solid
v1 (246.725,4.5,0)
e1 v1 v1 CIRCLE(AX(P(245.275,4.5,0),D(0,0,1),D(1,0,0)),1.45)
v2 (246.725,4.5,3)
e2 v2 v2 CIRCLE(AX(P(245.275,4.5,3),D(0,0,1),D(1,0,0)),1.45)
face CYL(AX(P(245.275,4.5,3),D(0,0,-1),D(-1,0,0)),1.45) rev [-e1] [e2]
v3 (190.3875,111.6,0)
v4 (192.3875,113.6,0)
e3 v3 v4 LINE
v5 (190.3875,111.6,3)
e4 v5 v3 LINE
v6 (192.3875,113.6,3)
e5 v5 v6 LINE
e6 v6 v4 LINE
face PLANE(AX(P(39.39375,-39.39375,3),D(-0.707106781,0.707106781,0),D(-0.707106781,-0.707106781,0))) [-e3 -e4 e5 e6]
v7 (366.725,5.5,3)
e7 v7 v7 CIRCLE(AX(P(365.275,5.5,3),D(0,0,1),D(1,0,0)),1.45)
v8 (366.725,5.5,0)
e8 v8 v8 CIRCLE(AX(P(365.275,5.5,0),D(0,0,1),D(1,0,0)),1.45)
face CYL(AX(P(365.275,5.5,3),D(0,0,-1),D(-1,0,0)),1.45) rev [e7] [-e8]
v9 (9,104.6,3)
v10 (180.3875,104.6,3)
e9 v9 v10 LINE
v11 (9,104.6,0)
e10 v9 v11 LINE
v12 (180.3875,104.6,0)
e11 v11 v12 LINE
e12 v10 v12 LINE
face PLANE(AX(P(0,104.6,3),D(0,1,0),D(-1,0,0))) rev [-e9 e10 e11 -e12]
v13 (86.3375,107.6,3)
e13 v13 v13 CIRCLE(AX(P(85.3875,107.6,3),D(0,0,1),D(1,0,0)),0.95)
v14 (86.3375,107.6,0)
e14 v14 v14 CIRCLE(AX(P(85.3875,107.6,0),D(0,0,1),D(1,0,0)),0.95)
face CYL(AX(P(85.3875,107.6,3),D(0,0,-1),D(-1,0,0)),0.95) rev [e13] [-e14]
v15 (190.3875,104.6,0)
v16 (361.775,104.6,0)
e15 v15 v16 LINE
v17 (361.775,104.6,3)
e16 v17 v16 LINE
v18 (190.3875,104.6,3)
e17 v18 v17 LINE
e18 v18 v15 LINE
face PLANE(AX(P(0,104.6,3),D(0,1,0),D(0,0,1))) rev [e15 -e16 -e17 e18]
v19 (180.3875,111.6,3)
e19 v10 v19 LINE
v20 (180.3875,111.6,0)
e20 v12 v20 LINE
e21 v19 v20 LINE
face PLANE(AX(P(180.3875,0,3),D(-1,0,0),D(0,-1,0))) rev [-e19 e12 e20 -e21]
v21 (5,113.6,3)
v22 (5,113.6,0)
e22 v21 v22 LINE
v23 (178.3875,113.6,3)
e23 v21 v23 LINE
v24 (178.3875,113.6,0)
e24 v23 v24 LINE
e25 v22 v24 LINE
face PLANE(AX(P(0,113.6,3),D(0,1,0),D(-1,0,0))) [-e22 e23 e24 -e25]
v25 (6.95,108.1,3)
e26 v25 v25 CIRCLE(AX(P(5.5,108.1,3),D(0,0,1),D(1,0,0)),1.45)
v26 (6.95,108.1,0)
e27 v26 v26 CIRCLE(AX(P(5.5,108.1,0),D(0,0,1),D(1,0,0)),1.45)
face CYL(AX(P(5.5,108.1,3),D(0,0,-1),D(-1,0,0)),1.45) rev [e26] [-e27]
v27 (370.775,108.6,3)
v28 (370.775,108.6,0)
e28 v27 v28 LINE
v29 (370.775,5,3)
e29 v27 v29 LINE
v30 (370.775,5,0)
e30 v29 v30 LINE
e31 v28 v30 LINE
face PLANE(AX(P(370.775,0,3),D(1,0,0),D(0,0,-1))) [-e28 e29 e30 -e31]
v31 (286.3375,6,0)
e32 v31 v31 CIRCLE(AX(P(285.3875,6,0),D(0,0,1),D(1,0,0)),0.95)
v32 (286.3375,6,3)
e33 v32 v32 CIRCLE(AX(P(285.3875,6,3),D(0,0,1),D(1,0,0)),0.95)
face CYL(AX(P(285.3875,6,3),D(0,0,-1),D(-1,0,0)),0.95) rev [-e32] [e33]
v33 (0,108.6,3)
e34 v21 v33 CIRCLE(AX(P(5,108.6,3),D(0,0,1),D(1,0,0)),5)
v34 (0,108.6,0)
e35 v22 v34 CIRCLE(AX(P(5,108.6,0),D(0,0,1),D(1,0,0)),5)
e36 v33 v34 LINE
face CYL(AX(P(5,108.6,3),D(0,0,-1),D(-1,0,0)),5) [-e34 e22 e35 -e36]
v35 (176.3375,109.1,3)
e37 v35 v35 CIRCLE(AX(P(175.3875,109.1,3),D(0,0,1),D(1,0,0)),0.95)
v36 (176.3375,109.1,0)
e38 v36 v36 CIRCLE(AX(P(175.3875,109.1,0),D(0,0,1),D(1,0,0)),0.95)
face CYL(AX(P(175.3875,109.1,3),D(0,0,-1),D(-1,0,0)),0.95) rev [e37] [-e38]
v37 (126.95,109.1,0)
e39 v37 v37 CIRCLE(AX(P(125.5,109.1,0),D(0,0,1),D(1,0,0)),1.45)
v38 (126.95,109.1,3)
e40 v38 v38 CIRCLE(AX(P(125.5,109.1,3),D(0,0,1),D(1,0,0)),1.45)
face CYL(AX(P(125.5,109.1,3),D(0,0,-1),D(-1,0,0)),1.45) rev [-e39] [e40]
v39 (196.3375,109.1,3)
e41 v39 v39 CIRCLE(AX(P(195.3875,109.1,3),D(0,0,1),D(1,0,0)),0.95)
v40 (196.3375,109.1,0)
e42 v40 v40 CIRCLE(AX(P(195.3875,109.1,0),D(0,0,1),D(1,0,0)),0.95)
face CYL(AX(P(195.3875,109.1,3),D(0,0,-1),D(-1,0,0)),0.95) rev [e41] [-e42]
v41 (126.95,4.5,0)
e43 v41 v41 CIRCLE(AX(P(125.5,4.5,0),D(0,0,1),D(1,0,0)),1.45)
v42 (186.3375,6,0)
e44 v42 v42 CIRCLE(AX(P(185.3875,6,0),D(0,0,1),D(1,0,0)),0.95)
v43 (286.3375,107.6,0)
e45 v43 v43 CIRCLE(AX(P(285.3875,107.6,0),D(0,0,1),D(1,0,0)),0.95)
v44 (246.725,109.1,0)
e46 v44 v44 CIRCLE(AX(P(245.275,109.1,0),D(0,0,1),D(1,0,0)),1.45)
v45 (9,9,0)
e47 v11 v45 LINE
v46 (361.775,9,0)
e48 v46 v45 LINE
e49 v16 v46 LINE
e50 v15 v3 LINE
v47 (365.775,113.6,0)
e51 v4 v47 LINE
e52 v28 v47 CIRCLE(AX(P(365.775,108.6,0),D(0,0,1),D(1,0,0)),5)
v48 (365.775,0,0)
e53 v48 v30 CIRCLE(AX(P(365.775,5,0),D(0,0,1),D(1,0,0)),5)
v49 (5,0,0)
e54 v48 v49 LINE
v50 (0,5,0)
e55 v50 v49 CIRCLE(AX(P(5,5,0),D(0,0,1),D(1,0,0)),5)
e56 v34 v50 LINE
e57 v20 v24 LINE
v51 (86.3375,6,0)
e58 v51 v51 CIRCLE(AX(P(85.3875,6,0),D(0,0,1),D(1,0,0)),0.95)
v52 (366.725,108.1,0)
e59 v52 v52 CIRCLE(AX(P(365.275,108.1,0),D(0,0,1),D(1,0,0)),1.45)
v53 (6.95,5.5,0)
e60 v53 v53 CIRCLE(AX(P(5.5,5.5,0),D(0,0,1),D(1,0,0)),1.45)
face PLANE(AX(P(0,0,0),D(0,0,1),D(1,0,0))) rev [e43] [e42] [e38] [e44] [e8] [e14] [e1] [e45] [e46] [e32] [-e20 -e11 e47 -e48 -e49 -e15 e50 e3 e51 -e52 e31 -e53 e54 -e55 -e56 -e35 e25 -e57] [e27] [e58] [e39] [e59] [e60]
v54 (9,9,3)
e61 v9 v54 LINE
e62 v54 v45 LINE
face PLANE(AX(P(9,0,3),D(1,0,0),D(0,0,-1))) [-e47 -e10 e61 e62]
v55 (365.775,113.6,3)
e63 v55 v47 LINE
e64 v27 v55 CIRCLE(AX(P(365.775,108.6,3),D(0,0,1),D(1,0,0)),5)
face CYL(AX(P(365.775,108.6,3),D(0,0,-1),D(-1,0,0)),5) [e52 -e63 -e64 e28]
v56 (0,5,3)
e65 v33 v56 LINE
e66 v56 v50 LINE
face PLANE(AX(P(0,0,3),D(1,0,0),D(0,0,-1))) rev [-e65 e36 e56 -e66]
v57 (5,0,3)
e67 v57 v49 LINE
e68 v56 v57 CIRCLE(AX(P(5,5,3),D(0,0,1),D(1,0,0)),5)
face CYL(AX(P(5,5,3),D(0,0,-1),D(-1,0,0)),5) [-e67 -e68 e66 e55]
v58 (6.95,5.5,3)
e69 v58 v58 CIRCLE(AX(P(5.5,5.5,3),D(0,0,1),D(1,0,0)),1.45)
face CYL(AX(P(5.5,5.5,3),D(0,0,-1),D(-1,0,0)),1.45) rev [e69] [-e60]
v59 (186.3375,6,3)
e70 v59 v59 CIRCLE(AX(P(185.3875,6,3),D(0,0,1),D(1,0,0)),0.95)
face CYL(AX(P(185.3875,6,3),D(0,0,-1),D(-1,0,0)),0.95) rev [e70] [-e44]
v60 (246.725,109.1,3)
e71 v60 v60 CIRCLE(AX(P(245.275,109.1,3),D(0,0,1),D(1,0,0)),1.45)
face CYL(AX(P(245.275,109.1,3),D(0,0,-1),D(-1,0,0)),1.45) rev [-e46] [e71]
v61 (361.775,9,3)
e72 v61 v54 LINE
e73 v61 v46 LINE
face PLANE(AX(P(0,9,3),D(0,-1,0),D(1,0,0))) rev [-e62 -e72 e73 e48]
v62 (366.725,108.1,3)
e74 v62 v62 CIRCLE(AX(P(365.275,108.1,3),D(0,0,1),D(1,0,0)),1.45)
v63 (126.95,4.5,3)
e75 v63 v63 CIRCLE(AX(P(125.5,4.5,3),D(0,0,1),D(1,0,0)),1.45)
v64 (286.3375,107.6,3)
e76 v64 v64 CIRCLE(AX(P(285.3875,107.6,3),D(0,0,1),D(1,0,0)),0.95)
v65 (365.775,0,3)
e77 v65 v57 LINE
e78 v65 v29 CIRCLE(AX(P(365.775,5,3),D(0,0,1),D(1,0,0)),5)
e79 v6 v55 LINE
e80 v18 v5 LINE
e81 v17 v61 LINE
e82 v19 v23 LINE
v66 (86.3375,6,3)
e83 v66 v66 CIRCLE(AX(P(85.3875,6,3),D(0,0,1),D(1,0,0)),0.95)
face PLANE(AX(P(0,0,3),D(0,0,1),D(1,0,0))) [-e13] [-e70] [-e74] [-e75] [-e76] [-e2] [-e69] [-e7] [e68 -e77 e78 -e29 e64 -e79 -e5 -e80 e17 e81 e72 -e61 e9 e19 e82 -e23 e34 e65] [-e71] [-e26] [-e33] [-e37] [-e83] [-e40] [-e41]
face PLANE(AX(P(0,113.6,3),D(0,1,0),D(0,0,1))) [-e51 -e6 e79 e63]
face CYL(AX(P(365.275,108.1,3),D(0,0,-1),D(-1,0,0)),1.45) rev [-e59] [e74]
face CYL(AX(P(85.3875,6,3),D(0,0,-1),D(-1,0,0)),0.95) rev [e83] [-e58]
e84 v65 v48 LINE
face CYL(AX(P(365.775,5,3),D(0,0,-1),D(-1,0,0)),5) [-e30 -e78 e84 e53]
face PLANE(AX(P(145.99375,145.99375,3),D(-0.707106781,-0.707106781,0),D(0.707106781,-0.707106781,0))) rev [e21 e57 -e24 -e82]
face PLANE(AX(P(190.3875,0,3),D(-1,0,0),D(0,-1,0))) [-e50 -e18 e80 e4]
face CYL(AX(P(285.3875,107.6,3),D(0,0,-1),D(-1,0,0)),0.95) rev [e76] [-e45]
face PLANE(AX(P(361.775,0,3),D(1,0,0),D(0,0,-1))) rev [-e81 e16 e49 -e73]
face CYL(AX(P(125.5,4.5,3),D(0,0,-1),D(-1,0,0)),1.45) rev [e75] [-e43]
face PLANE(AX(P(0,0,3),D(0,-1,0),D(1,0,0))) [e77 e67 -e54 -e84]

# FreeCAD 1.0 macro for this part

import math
import FreeCAD as App
import Part
import Sketcher

doc = App.newDocument("Part")
body = doc.addObject("PartDesign::Body", "Body")

# Sketch on XY plane
sketch1 = body.newObject("Sketcher::SketchObject", "Sketch")
sketch1.AttachmentSupport = (doc.getObject("XY_Plane"), [""])
sketch1.MapMode = "FlatFace"
sketch1.addGeometry(Part.LineSegment(App.Vector(178.4, 113.6, 0), App.Vector(5, 113.6, 0)), False)
sketch1.addGeometry(Part.ArcOfCircle(Part.Circle(App.Vector(5, 108.6, 0), App.Vector(0, 0, 1), 5), math.radians(90), math.radians(180)), False)
sketch1.addGeometry(Part.LineSegment(App.Vector(0, 108.6, 0), App.Vector(0, 5, 0)), False)
sketch1.addGeometry(Part.ArcOfCircle(Part.Circle(App.Vector(5, 5, 0), App.Vector(0, 0, 1), 5), math.radians(180), math.radians(270)), False)
sketch1.addGeometry(Part.LineSegment(App.Vector(5, 0, 0), App.Vector(365.8, 0, 0)), False)
sketch1.addGeometry(Part.ArcOfCircle(Part.Circle(App.Vector(365.8, 5, 0), App.Vector(0, 0, 1), 5), math.radians(-90), math.radians(0)), False)
sketch1.addGeometry(Part.LineSegment(App.Vector(370.8, 5, 0), App.Vector(370.8, 108.6, 0)), False)
sketch1.addGeometry(Part.ArcOfCircle(Part.Circle(App.Vector(365.8, 108.6, 0), App.Vector(0, 0, 1), 5), math.radians(0), math.radians(90)), False)
sketch1.addGeometry(Part.LineSegment(App.Vector(365.8, 113.6, 0), App.Vector(192.4, 113.6, 0)), False)
sketch1.addGeometry(Part.LineSegment(App.Vector(192.4, 113.6, 0), App.Vector(190.4, 111.6, 0)), False)
sketch1.addGeometry(Part.LineSegment(App.Vector(190.4, 111.6, 0), App.Vector(190.4, 104.6, 0)), False)
sketch1.addGeometry(Part.LineSegment(App.Vector(190.4, 104.6, 0), App.Vector(361.8, 104.6, 0)), False)
sketch1.addGeometry(Part.LineSegment(App.Vector(361.8, 104.6, 0), App.Vector(361.8, 9, 0)), False)
sketch1.addGeometry(Part.LineSegment(App.Vector(361.8, 9, 0), App.Vector(9, 9, 0)), False)
sketch1.addGeometry(Part.LineSegment(App.Vector(9, 9, 0), App.Vector(9, 104.6, 0)), False)
sketch1.addGeometry(Part.LineSegment(App.Vector(9, 104.6, 0), App.Vector(180.4, 104.6, 0)), False)
sketch1.addGeometry(Part.LineSegment(App.Vector(180.4, 104.6, 0), App.Vector(180.4, 111.6, 0)), False)
sketch1.addGeometry(Part.LineSegment(App.Vector(180.4, 111.6, 0), App.Vector(178.4, 113.6, 0)), False)
sketch1.addGeometry(Part.Circle(App.Vector(365.3, 5.5, 0), App.Vector(0, 0, 1), 1.4), False)
sketch1.addGeometry(Part.Circle(App.Vector(285.4, 6, 0), App.Vector(0, 0, 1), 0.9), False)
sketch1.addGeometry(Part.Circle(App.Vector(245.3, 4.5, 0), App.Vector(0, 0, 1), 1.4), False)
sketch1.addGeometry(Part.Circle(App.Vector(185.4, 6, 0), App.Vector(0, 0, 1), 0.9), False)
sketch1.addGeometry(Part.Circle(App.Vector(125.5, 4.5, 0), App.Vector(0, 0, 1), 1.4), False)
sketch1.addGeometry(Part.Circle(App.Vector(85.4, 6, 0), App.Vector(0, 0, 1), 0.9), False)
sketch1.addGeometry(Part.Circle(App.Vector(5.5, 5.5, 0), App.Vector(0, 0, 1), 1.4), False)
sketch1.addGeometry(Part.Circle(App.Vector(365.3, 108.1, 0), App.Vector(0, 0, 1), 1.4), False)
sketch1.addGeometry(Part.Circle(App.Vector(285.4, 107.6, 0), App.Vector(0, 0, 1), 0.9), False)
sketch1.addGeometry(Part.Circle(App.Vector(245.3, 109.1, 0), App.Vector(0, 0, 1), 1.4), False)
sketch1.addGeometry(Part.Circle(App.Vector(195.4, 109.1, 0), App.Vector(0, 0, 1), 0.9), False)
sketch1.addGeometry(Part.Circle(App.Vector(175.4, 109.1, 0), App.Vector(0, 0, 1), 0.9), False)
sketch1.addGeometry(Part.Circle(App.Vector(125.5, 109.1, 0), App.Vector(0, 0, 1), 1.4), False)
sketch1.addGeometry(Part.Circle(App.Vector(85.4, 107.6, 0), App.Vector(0, 0, 1), 0.9), False)
sketch1.addGeometry(Part.Circle(App.Vector(5.5, 108.1, 0), App.Vector(0, 0, 1), 1.4), False)
sketch1.addConstraint(Sketcher.Constraint("Tangent", 0, 2, 1, 1))
sketch1.addConstraint(Sketcher.Constraint("Tangent", 1, 2, 2, 1))
sketch1.addConstraint(Sketcher.Constraint("Tangent", 2, 2, 3, 1))
sketch1.addConstraint(Sketcher.Constraint("Tangent", 3, 2, 4, 1))
sketch1.addConstraint(Sketcher.Constraint("Tangent", 4, 2, 5, 1))
sketch1.addConstraint(Sketcher.Constraint("Tangent", 5, 2, 6, 1))
sketch1.addConstraint(Sketcher.Constraint("Tangent", 6, 2, 7, 1))
sketch1.addConstraint(Sketcher.Constraint("Tangent", 7, 2, 8, 1))
sketch1.addConstraint(Sketcher.Constraint("Coincident", 8, 2, 9, 1))
sketch1.addConstraint(Sketcher.Constraint("Coincident", 9, 2, 10, 1))
sketch1.addConstraint(Sketcher.Constraint("Coincident", 10, 2, 11, 1))
sketch1.addConstraint(Sketcher.Constraint("Coincident", 11, 2, 12, 1))
sketch1.addConstraint(Sketcher.Constraint("Coincident", 12, 2, 13, 1))
sketch1.addConstraint(Sketcher.Constraint("Coincident", 13, 2, 14, 1))
sketch1.addConstraint(Sketcher.Constraint("Coincident", 14, 2, 15, 1))
sketch1.addConstraint(Sketcher.Constraint("Coincident", 15, 2, 16, 1))
sketch1.addConstraint(Sketcher.Constraint("Coincident", 16, 2, 17, 1))
sketch1.addConstraint(Sketcher.Constraint("Coincident", 17, 2, 0, 1))
sketch1.addConstraint(Sketcher.Constraint("Horizontal", 0))
sketch1.addConstraint(Sketcher.Constraint("Vertical", 2))
sketch1.addConstraint(Sketcher.Constraint("Horizontal", 4))
sketch1.addConstraint(Sketcher.Constraint("Vertical", 6))
sketch1.addConstraint(Sketcher.Constraint("Horizontal", 8))
sketch1.addConstraint(Sketcher.Constraint("Vertical", 10))
sketch1.addConstraint(Sketcher.Constraint("Horizontal", 11))
sketch1.addConstraint(Sketcher.Constraint("Vertical", 12))
sketch1.addConstraint(Sketcher.Constraint("Horizontal", 13))
sketch1.addConstraint(Sketcher.Constraint("Vertical", 14))
sketch1.addConstraint(Sketcher.Constraint("Horizontal", 15))
sketch1.addConstraint(Sketcher.Constraint("Vertical", 16))
sketch1.addConstraint(Sketcher.Constraint("Equal", 1, 3))
sketch1.addConstraint(Sketcher.Constraint("Equal", 3, 5))
sketch1.addConstraint(Sketcher.Constraint("Equal", 5, 7))
sketch1.addConstraint(Sketcher.Constraint("Equal", 18, 20))
sketch1.addConstraint(Sketcher.Constraint("Equal", 19, 21))
sketch1.addConstraint(Sketcher.Constraint("Equal", 20, 22))
sketch1.addConstraint(Sketcher.Constraint("Equal", 21, 23))
sketch1.addConstraint(Sketcher.Constraint("Equal", 22, 24))
sketch1.addConstraint(Sketcher.Constraint("Equal", 24, 25))
sketch1.addConstraint(Sketcher.Constraint("Equal", 23, 26))
sketch1.addConstraint(Sketcher.Constraint("Equal", 25, 27))
sketch1.addConstraint(Sketcher.Constraint("Equal", 26, 28))
sketch1.addConstraint(Sketcher.Constraint("Equal", 28, 29))
sketch1.addConstraint(Sketcher.Constraint("Equal", 27, 30))
sketch1.addConstraint(Sketcher.Constraint("Equal", 29, 31))
sketch1.addConstraint(Sketcher.Constraint("Equal", 30, 32))
sketch1.addConstraint(Sketcher.Constraint("PointOnObject", 1, 2, -2))
sketch1.addConstraint(Sketcher.Constraint("PointOnObject", 3, 2, -1))
sketch1.addConstraint(Sketcher.Constraint("Perpendicular", 9, 17))
sketch1.addConstraint(Sketcher.Constraint("Horizontal", 1, 3, 7, 3))
sketch1.addConstraint(Sketcher.Constraint("Horizontal", 19, 3, 21, 3))
sketch1.addConstraint(Sketcher.Constraint("Horizontal", 20, 3, 22, 3))
sketch1.addConstraint(Sketcher.Constraint("Horizontal", 21, 3, 23, 3))
sketch1.addConstraint(Sketcher.Constraint("Horizontal", 18, 3, 24, 3))
sketch1.addConstraint(Sketcher.Constraint("Horizontal", 27, 3, 28, 3))
sketch1.addConstraint(Sketcher.Constraint("Horizontal", 28, 3, 29, 3))
sketch1.addConstraint(Sketcher.Constraint("Horizontal", 29, 3, 30, 3))
sketch1.addConstraint(Sketcher.Constraint("Horizontal", 26, 3, 31, 3))
sketch1.addConstraint(Sketcher.Constraint("Horizontal", 25, 3, 32, 3))
sketch1.addConstraint(Sketcher.Constraint("Horizontal", 11, 2, 14, 2))
sketch1.addConstraint(Sketcher.Constraint("Horizontal", 9, 2, 16, 2))
sketch1.addConstraint(Sketcher.Constraint("Vertical", 18, 3, 25, 3))
sketch1.addConstraint(Sketcher.Constraint("Vertical", 19, 3, 26, 3))
sketch1.addConstraint(Sketcher.Constraint("Vertical", 20, 3, 27, 3))
sketch1.addConstraint(Sketcher.Constraint("Vertical", 22, 3, 30, 3))
sketch1.addConstraint(Sketcher.Constraint("Vertical", 23, 3, 31, 3))
sketch1.addConstraint(Sketcher.Constraint("Vertical", 24, 3, 32, 3))
sketch1.addConstraint(Sketcher.Constraint("Equal", 0, 8))
sketch1.addConstraint(Sketcher.Constraint("Equal", 11, 15))
sketch1.addConstraint(Sketcher.Constraint("Equal", 9, 17))
sketch1.addConstraint(Sketcher.Constraint("Radius", 1, 5.0))
sketch1.addConstraint(Sketcher.Constraint("Diameter", 18, 2.9))
sketch1.addConstraint(Sketcher.Constraint("Diameter", 19, 1.9))
sketch1.addConstraint(Sketcher.Constraint("DistanceY", 10, 2, 10, 1, 7.0))
sketch1.addConstraint(Sketcher.Constraint("DistanceY", 2, 2, 2, 1, 103.6))
sketch1.addConstraint(Sketcher.Constraint("DistanceY", 12, 2, 12, 1, 95.6))
sketch1.addConstraint(Sketcher.Constraint("DistanceY", -1, 1, 19, 3, 6.0))
sketch1.addConstraint(Sketcher.Constraint("DistanceY", -1, 1, 12, 2, 9.0))
sketch1.addConstraint(Sketcher.Constraint("DistanceX", -1, 1, 13, 2, 9.0))
sketch1.addConstraint(Sketcher.Constraint("DistanceX", 20, 3, 18, 3, 120.0))
sketch1.addConstraint(Sketcher.Constraint("DistanceY", 20, 3, 18, 3, 1.0))
sketch1.addConstraint(Sketcher.Constraint("DistanceX", 21, 3, 19, 3, 100.0))
sketch1.addConstraint(Sketcher.Constraint("DistanceX", 23, 3, 21, 3, 100.0))
sketch1.addConstraint(Sketcher.Constraint("DistanceX", 24, 3, 22, 3, 120.0))
sketch1.addConstraint(Sketcher.Constraint("DistanceY", 26, 3, 7, 3, 1.0))
sketch1.addConstraint(Sketcher.Constraint("DistanceY", 25, 3, 27, 3, 1.0))
sketch1.addConstraint(Sketcher.Constraint("DistanceX", 28, 3, 26, 3, 90.0))
sketch1.addConstraint(Sketcher.Constraint("DistanceX", 29, 3, 28, 3, 20.0))
sketch1.addConstraint(Sketcher.Constraint("DistanceX", 8, 2, 28, 3, 3.0))
sketch1.addConstraint(Sketcher.Constraint("DistanceX", 29, 3, 15, 2, 5.0))
sketch1.addConstraint(Sketcher.Constraint("DistanceY", -1, 1, 18, 3, 5.5))
sketch1.addConstraint(Sketcher.Constraint("DistanceX", -1, 1, 22, 3, 125.5))
sketch1.addConstraint(Sketcher.Constraint("DistanceY", -1, 1, 25, 3, 108.1))
sketch1.addConstraint(Sketcher.Constraint("DistanceX", 18, 3, 5, 3, 0.5))
sketch1.addConstraint(Sketcher.Constraint("DistanceX", 4, 1, 4, 2, 360.775))
pad1 = body.newObject("PartDesign::Pad", "Pad")
pad1.Profile = sketch1
pad1.Length = 3

doc.recompute()
